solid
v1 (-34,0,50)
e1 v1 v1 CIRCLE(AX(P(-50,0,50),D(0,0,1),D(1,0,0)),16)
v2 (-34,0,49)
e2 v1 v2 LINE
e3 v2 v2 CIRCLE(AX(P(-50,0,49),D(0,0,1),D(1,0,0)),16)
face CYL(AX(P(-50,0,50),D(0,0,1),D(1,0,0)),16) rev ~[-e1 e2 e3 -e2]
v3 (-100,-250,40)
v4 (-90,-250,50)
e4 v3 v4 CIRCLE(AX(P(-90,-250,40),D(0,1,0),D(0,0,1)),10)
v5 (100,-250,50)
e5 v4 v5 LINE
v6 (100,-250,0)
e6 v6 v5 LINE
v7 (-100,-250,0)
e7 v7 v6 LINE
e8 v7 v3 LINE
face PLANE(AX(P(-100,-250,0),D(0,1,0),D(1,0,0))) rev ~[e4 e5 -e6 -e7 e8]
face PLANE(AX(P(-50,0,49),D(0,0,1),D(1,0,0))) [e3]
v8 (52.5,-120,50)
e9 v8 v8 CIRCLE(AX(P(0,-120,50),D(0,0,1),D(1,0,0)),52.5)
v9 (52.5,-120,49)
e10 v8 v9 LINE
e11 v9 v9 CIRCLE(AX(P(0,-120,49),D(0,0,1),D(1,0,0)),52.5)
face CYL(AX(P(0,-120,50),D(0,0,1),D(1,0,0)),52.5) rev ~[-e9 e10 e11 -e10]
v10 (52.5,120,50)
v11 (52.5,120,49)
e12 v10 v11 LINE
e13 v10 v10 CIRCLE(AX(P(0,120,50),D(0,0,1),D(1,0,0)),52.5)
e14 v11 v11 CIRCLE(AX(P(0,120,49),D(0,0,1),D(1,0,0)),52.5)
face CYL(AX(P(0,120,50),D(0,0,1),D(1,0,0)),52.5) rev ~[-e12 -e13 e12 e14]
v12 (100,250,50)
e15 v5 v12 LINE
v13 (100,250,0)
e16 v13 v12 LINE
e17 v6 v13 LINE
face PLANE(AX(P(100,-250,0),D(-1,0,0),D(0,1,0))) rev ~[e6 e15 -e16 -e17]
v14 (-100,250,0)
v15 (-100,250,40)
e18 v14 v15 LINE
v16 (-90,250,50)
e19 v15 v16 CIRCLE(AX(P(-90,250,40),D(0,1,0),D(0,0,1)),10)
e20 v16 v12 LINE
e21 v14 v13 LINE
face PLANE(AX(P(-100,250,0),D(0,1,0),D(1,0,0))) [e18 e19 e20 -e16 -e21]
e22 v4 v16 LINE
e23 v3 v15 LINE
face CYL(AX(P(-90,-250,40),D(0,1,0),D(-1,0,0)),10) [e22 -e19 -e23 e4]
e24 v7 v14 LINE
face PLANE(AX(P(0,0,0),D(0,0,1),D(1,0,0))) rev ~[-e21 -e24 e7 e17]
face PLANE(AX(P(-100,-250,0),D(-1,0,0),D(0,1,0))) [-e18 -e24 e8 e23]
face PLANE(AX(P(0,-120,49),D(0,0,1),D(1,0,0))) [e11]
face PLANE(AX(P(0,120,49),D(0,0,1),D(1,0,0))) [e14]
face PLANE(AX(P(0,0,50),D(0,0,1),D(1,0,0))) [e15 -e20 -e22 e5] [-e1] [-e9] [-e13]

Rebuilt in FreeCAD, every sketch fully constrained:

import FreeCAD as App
import Part
import Sketcher


def edges_at(feature, points):
    """Names of the edges that pass closest to the given points."""
    edges = feature.Shape.Edges
    near = lambda p: min(range(len(edges)), key=lambda i: edges[i].distToShape(Part.Vertex(*p))[0])
    return sorted({f"Edge{near(p) + 1}" for p in points})

doc = App.newDocument("Part")
body = doc.addObject("PartDesign::Body", "Body")

sketch1 = body.newObject("Sketcher::SketchObject", "Sketch")
sketch1.AttachmentSupport = (doc.getObject("XY_Plane"), [""])
sketch1.MapMode = "FlatFace"
sketch1.addGeometry(Part.LineSegment(App.Vector(-100, 250, 0), App.Vector(-100, -250, 0)), False)
sketch1.addGeometry(Part.LineSegment(App.Vector(-100, -250, 0), App.Vector(100, -250, 0)), False)
sketch1.addGeometry(Part.LineSegment(App.Vector(100, -250, 0), App.Vector(100, 250, 0)), False)
sketch1.addGeometry(Part.LineSegment(App.Vector(100, 250, 0), App.Vector(-100, 250, 0)), False)
sketch1.addConstraint(Sketcher.Constraint("Coincident", 0, 2, 1, 1))
sketch1.addConstraint(Sketcher.Constraint("Coincident", 1, 2, 2, 1))
sketch1.addConstraint(Sketcher.Constraint("Coincident", 2, 2, 3, 1))
sketch1.addConstraint(Sketcher.Constraint("Coincident", 3, 2, 0, 1))
sketch1.addConstraint(Sketcher.Constraint("Vertical", 0))
sketch1.addConstraint(Sketcher.Constraint("Horizontal", 1))
sketch1.addConstraint(Sketcher.Constraint("Vertical", 2))
sketch1.addConstraint(Sketcher.Constraint("Horizontal", 3))
sketch1.addConstraint(Sketcher.Constraint("Symmetric", 0, 2, 2, 2, -1, 1))
sketch1.addConstraint(Sketcher.Constraint("DistanceX", 1, 1, 1, 2, 200.0))
sketch1.addConstraint(Sketcher.Constraint("DistanceY", 0, 2, 0, 1, 500.0))
pad1 = body.newObject("PartDesign::Pad", "Pad")
pad1.Profile = sketch1
pad1.Length = 50

sketch2 = body.newObject("Sketcher::SketchObject", "Sketch001")
sketch2.AttachmentSupport = (doc.getObject("XY_Plane"), [""])
sketch2.MapMode = "FlatFace"
sketch2.AttachmentOffset = App.Placement(App.Vector(0, 0, 50), App.Rotation())
sketch2.addGeometry(Part.Circle(App.Vector(0, 120, 0), App.Vector(0, 0, 1), 52.5), False)
sketch2.addGeometry(Part.Circle(App.Vector(0, -120, 0), App.Vector(0, 0, 1), 52.5), False)
sketch2.addGeometry(Part.Circle(App.Vector(-50, 0, 0), App.Vector(0, 0, 1), 16), False)
sketch2.addConstraint(Sketcher.Constraint("Equal", 0, 1))
sketch2.addConstraint(Sketcher.Constraint("Symmetric", 0, 3, 1, 3, -1, 1))
sketch2.addConstraint(Sketcher.Constraint("PointOnObject", 0, 3, -2))
sketch2.addConstraint(Sketcher.Constraint("PointOnObject", 2, 3, -1))
sketch2.addConstraint(Sketcher.Constraint("Diameter", 0, 105.0))
sketch2.addConstraint(Sketcher.Constraint("Diameter", 2, 32.0))
sketch2.addConstraint(Sketcher.Constraint("DistanceY", -1, 1, 0, 3, 120.0))
sketch2.addConstraint(Sketcher.Constraint("DistanceX", 2, 3, -1, 1, 50.0))
pocket1 = body.newObject("PartDesign::Pocket", "Pocket")
pocket1.Profile = sketch2
pocket1.Length = 1
doc.recompute()

fillet = body.newObject("PartDesign::Fillet", "Fillet")
fillet.Base = (pocket1, edges_at(pocket1, [(-100, 0, 50)]))
fillet.Radius = 10

doc.recompute()
